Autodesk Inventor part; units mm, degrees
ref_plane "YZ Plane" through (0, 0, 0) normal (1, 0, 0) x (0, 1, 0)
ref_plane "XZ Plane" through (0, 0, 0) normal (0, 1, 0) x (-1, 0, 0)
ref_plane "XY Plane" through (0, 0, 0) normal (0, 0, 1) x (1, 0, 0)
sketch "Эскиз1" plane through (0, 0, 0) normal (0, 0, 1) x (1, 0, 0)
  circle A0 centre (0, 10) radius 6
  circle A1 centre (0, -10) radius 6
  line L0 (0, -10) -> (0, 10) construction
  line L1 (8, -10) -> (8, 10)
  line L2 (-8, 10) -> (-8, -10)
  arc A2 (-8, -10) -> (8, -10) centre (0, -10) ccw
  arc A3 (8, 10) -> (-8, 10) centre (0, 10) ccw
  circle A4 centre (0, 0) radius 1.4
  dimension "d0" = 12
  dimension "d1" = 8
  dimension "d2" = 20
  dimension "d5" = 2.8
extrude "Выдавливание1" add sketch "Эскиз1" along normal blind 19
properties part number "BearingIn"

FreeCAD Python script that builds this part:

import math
import FreeCAD as App
import Part
import Sketcher

V = App.Vector
Q = App.Units.Quantity

doc = App.newDocument("Part")
body = doc.addObject("PartDesign::Body", "Body")

sketch1 = body.newObject("Sketcher::SketchObject", "Sketch")
sketch1.AttachmentSupport = (doc.getObject("XY_Plane"), [""])
sketch1.MapMode = "FlatFace"
sketch1.addGeometry(Part.ArcOfCircle(Part.Circle(V(0, -10, 0), V(0, 0, 1), 8), math.radians(180), math.radians(360)), False)
sketch1.addGeometry(Part.LineSegment(V(8, -10, 0), V(8, 10, 0)), False)
sketch1.addGeometry(Part.ArcOfCircle(Part.Circle(V(0, 10, 0), V(0, 0, 1), 8), math.radians(0), math.radians(180)), False)
sketch1.addGeometry(Part.LineSegment(V(-8, 10, 0), V(-8, -10, 0)), False)
sketch1.addGeometry(Part.Circle(V(0, -10, 0), V(0, 0, 1), 6), False)
sketch1.addGeometry(Part.Circle(V(0, 0, 0), V(0, 0, 1), 1.4), False)
sketch1.addGeometry(Part.Circle(V(0, 10, 0), V(0, 0, 1), 6), False)
sketch1.addConstraint(Sketcher.Constraint("Tangent", 0, 2, 1, 1))
sketch1.addConstraint(Sketcher.Constraint("Tangent", 1, 2, 2, 1))
sketch1.addConstraint(Sketcher.Constraint("Tangent", 2, 2, 3, 1))
sketch1.addConstraint(Sketcher.Constraint("Tangent", 3, 2, 0, 1))
sketch1.addConstraint(Sketcher.Constraint("Vertical", 1))
sketch1.addConstraint(Sketcher.Constraint("Vertical", 3))
sketch1.addConstraint(Sketcher.Constraint("Coincident", 5, 3, -1, 1))
sketch1.addConstraint(Sketcher.Constraint("Coincident", 4, 3, 0, 3))
sketch1.addConstraint(Sketcher.Constraint("Coincident", 6, 3, 2, 3))
sketch1.addConstraint(Sketcher.Constraint("Equal", 4, 6))
sketch1.addConstraint(Sketcher.Constraint("Symmetric", 0, 3, 2, 3, -1, 1))
sketch1.addConstraint(Sketcher.Constraint("Diameter", 4, Q("12 mm")))
sketch1.addConstraint(Sketcher.Constraint("Radius", 0, Q("8 mm")))
sketch1.addConstraint(Sketcher.Constraint("Diameter", 5, Q("2.8 mm")))
sketch1.addConstraint(Sketcher.Constraint("DistanceY", 1, 1, 1, 2, Q("20 mm")))
pad1 = body.newObject("PartDesign::Pad", "Pad")
pad1.Profile = sketch1
pad1.Length = 19

doc.recompute()
